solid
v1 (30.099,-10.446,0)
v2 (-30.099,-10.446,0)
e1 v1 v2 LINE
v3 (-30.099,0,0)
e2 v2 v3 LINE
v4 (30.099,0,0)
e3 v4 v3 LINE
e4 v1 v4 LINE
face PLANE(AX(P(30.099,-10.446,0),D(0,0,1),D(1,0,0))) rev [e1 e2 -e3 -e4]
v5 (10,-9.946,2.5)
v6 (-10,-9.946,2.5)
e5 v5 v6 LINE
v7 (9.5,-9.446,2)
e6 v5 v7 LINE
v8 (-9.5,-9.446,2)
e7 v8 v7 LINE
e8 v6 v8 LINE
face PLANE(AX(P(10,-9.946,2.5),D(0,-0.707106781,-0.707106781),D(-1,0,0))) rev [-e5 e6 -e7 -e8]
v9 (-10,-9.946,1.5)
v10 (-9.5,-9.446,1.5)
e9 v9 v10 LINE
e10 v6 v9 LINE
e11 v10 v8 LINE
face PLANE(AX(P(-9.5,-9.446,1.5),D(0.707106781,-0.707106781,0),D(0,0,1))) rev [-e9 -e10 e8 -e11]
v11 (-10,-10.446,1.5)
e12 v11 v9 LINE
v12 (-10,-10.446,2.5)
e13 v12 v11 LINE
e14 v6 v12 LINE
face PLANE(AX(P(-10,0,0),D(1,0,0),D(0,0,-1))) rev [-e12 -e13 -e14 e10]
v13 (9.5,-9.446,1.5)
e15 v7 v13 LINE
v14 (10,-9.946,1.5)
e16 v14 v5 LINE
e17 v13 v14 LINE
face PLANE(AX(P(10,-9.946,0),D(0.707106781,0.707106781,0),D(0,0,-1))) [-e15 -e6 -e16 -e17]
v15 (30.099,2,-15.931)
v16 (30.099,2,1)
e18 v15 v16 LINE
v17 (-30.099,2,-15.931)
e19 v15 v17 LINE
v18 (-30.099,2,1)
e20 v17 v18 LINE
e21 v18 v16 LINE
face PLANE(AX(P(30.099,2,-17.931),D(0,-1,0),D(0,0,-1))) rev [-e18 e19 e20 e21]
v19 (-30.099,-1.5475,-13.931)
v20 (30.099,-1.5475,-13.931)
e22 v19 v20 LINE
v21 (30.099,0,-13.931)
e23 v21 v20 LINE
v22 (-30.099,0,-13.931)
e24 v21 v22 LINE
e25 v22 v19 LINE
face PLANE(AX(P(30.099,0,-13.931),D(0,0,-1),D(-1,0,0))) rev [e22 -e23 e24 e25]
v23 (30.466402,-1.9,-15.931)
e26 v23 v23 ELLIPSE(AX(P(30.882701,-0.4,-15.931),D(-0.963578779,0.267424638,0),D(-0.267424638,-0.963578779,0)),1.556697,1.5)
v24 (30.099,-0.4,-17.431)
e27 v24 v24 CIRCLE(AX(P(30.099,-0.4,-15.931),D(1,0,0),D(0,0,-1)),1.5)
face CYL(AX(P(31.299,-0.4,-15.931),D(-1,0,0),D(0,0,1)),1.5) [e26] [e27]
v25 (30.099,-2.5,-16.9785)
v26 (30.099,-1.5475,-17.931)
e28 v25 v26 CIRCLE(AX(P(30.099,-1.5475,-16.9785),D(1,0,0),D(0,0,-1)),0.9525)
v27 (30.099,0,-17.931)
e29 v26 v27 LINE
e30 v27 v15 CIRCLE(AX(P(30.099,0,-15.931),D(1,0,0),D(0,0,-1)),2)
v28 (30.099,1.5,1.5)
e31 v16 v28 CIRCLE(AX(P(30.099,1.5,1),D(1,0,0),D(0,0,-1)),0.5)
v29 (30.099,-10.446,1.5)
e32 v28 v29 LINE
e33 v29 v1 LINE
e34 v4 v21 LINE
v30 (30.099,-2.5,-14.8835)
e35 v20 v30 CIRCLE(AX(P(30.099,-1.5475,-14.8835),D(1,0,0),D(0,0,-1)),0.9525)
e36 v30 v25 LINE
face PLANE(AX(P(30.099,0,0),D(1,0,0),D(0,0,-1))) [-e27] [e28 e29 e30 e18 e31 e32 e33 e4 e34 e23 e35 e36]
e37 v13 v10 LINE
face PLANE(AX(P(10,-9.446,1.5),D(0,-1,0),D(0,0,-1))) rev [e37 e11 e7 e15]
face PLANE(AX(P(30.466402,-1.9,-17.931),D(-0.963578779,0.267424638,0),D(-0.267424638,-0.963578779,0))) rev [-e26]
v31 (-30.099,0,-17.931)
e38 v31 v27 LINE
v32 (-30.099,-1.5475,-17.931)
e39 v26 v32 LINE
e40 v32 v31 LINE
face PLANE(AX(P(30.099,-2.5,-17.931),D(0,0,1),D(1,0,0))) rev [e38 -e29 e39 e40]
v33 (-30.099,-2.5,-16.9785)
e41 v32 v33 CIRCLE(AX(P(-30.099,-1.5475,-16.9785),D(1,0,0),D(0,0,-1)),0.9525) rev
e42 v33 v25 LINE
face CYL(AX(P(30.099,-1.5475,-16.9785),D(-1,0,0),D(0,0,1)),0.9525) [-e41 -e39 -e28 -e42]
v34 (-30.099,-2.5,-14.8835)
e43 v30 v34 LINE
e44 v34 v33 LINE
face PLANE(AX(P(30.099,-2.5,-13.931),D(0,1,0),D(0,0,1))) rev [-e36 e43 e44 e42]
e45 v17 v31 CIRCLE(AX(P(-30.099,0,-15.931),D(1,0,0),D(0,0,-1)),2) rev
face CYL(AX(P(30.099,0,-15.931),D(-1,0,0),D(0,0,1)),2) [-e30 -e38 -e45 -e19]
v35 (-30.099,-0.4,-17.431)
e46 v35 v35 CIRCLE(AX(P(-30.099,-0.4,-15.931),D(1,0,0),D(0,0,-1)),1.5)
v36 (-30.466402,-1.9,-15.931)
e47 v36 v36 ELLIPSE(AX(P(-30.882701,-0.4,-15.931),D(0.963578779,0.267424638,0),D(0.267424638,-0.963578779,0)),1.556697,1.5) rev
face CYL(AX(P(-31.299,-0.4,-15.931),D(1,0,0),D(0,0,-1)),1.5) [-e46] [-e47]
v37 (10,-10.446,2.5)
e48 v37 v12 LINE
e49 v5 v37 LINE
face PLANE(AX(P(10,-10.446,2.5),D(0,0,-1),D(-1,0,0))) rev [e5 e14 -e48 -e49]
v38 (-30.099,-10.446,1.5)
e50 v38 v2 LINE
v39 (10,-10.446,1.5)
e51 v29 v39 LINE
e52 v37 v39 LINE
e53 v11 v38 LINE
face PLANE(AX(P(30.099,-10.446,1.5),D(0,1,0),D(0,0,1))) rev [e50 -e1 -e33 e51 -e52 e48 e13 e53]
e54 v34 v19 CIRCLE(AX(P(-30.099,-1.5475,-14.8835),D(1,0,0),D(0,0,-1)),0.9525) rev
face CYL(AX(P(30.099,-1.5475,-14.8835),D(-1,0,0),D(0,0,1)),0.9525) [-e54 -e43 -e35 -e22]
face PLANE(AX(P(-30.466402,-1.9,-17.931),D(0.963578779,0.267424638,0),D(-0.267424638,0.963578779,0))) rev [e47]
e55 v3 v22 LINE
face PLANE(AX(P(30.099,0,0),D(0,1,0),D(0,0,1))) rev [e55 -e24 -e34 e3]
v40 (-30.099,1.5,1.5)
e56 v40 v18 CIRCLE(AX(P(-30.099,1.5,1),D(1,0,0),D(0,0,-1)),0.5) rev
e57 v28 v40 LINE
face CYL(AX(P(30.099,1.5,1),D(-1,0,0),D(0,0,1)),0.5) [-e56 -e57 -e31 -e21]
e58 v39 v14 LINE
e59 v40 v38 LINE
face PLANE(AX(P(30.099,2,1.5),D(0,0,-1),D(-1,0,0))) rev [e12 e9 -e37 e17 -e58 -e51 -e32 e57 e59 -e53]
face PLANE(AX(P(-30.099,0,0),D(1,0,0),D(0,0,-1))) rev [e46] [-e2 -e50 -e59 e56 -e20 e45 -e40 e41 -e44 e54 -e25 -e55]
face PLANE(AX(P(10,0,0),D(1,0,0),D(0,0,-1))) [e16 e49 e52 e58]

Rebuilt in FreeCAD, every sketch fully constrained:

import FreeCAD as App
import Part
import Sketcher
Q = App.Units.Quantity


def edges_at(feature, points):
    """Names of the edges that pass closest to the given points."""
    edges = feature.Shape.Edges
    near = lambda p: min(range(len(edges)), key=lambda i: edges[i].distToShape(Part.Vertex(*p))[0])
    return sorted({f"Edge{near(p) + 1}" for p in points})

doc = App.newDocument("Part")
params = doc.addObject("Spreadsheet::Sheet", "Params")
for row, (alias, value) in enumerate([
    ("sketch1_height", "4 mm"),
    ("sketch1_width", "2.5 mm"),
    ("sketch1_width2", "4.5 mm"),
    ("sketch1_height2", "1.5 mm"),
    ("pad1_length", "60.198 mm"),
    ("fillet_radius", "2 mm"),
    ("sketch2_width", "1 mm"),
    ("pad2_length", "20 mm"),
    ("sketch3_diameter", "3 mm"),
    ("pad3_length", "1.2 mm"),
    ("chamfer_size", "0.5 mm"),
    ("fillet2_radius", "0.5 mm"),
    ("fillet3_radius", "0.9525 mm"),
    ("sketch4_height", "3 mm"),
], start=1):
    params.set(f"A{row}", alias)
    params.set(f"B{row}", "=" + value)
    params.setAlias(f"B{row}", alias)

body = doc.addObject("PartDesign::Body", "Body")

sketch1 = doc.addObject("Sketcher::SketchObject", "Sketch")
body.addObject(sketch1)
sketch1.AttachmentSupport = (doc.YZ_Plane, [""])
sketch1.MapMode = "FlatFace"
sketch1.addGeometry([
    Part.LineSegment(App.Vector(-10.4, 0, 0), App.Vector(0, 0, 0)),
    Part.LineSegment(App.Vector(0, 0, 0), App.Vector(0, -13.9, 0)),
    Part.LineSegment(App.Vector(0, -13.9, 0), App.Vector(-2.5, -13.9, 0)),
    Part.LineSegment(App.Vector(-2.5, -13.9, 0), App.Vector(-2.5, -17.9, 0)),
    Part.LineSegment(App.Vector(-2.5, -17.9, 0), App.Vector(2, -17.9, 0)),
    Part.LineSegment(App.Vector(2, -17.9, 0), App.Vector(2, 1.5, 0)),
    Part.LineSegment(App.Vector(2, 1.5, 0), App.Vector(-10.4, 1.5, 0)),
    Part.LineSegment(App.Vector(-10.4, 1.5, 0), App.Vector(-10.4, 0, 0)),
], False)
sketch1.addConstraint([
    Sketcher.Constraint("Coincident", 0, 2, 1, 1),
    Sketcher.Constraint("Coincident", 1, 2, 2, 1),
    Sketcher.Constraint("Coincident", 2, 2, 3, 1),
    Sketcher.Constraint("Coincident", 3, 2, 4, 1),
    Sketcher.Constraint("Coincident", 4, 2, 5, 1),
    Sketcher.Constraint("Coincident", 5, 2, 6, 1),
    Sketcher.Constraint("Coincident", 6, 2, 7, 1),
    Sketcher.Constraint("Coincident", 7, 2, 0, 1),
    Sketcher.Constraint("Horizontal", 0),
    Sketcher.Constraint("Vertical", 1),
    Sketcher.Constraint("Horizontal", 2),
    Sketcher.Constraint("Vertical", 3),
    Sketcher.Constraint("Horizontal", 4),
    Sketcher.Constraint("Vertical", 5),
    Sketcher.Constraint("Horizontal", 6),
    Sketcher.Constraint("Vertical", 7),
    Sketcher.Constraint("Coincident", 0, 2, -1, 1),
    Sketcher.Constraint("DistanceY", 3, 2, 3, 1, Q("4 mm")),
    Sketcher.Constraint("DistanceX", 2, 2, 2, 1, Q("2.5 mm")),
    Sketcher.Constraint("DistanceX", 4, 1, 4, 2, Q("4.5 mm")),
    Sketcher.Constraint("DistanceY", 7, 2, 7, 1, Q("1.5 mm")),
    Sketcher.Constraint("DistanceX", 0, 1, 0, 2, Q("10.446 mm")),
    Sketcher.Constraint("DistanceY", 1, 2, 1, 1, Q("13.931 mm")),
])
sketch1.setExpression("Constraints[17]", "Params.sketch1_height")
sketch1.setExpression("Constraints[18]", "Params.sketch1_width")
sketch1.setExpression("Constraints[19]", "Params.sketch1_width2")
sketch1.setExpression("Constraints[20]", "Params.sketch1_height2")
pad1 = doc.addObject("PartDesign::Pad", "Pad")
body.addObject(pad1)
pad1.Profile = sketch1
pad1.setExpression("Length", "Params.pad1_length")
pad1.Midplane = True
doc.recompute()

fillet = doc.addObject("PartDesign::Fillet", "Fillet")
body.addObject(fillet)
fillet.Base = (pad1, edges_at(pad1, [(0, 2, -17.931)]))
fillet.setExpression("Radius", "Params.fillet_radius")

sketch2 = doc.addObject("Sketcher::SketchObject", "Sketch001")
body.addObject(sketch2)
sketch2.AttachmentSupport = (doc.YZ_Plane, [""])
sketch2.MapMode = "FlatFace"
sketch2.addGeometry([
    Part.LineSegment(App.Vector(-9.4, 2.5, 0), App.Vector(-10.4, 2.5, 0)),
    Part.LineSegment(App.Vector(-10.4, 2.5, 0), App.Vector(-10.4, 1.5, 0)),
    Part.LineSegment(App.Vector(-10.4, 1.5, 0), App.Vector(-9.4, 1.5, 0)),
    Part.LineSegment(App.Vector(-9.4, 1.5, 0), App.Vector(-9.4, 2.5, 0)),
], False)
sketch2.addConstraint([
    Sketcher.Constraint("Coincident", 0, 2, 1, 1),
    Sketcher.Constraint("Coincident", 1, 2, 2, 1),
    Sketcher.Constraint("Coincident", 2, 2, 3, 1),
    Sketcher.Constraint("Coincident", 3, 2, 0, 1),
    Sketcher.Constraint("Horizontal", 0),
    Sketcher.Constraint("Vertical", 1),
    Sketcher.Constraint("Horizontal", 2),
    Sketcher.Constraint("Vertical", 3),
    Sketcher.Constraint("Equal", 2, 1),
    Sketcher.Constraint("DistanceX", 0, 2, 0, 1, Q("1 mm")),
    Sketcher.Constraint("DistanceY", -1, 1, 0, 2, Q("2.5 mm")),
    Sketcher.Constraint("DistanceX", 0, 2, -1, 1, Q("10.446 mm")),
])
sketch2.setExpression("Constraints[9]", "Params.sketch2_width")
pad2 = doc.addObject("PartDesign::Pad", "Pad001")
body.addObject(pad2)
pad2.Profile = sketch2
pad2.setExpression("Length", "Params.pad2_length")
pad2.Midplane = True

sketch3 = doc.addObject("Sketcher::SketchObject", "Sketch002")
body.addObject(sketch3)
sketch3.AttachmentSupport = (doc.YZ_Plane, [""])
sketch3.MapMode = "FlatFace"
sketch3.AttachmentOffset = App.Placement(App.Vector(0, 0, 30.099), App.Rotation())
sketch3.addGeometry(Part.Circle(App.Vector(-0.4, -15.9, 0), App.Vector(0, 0, 1), 1.5), False)
sketch3.addConstraint([
    Sketcher.Constraint("Diameter", 0, Q("3 mm")),
    Sketcher.Constraint("DistanceX", 0, 3, -1, 1, Q("0.4 mm")),
    Sketcher.Constraint("DistanceY", 0, 3, -1, 1, Q("15.931 mm")),
])
sketch3.setExpression("Constraints[0]", "Params.sketch3_diameter")
pad3 = doc.addObject("PartDesign::Pad", "Pad002")
body.addObject(pad3)
pad3.Profile = sketch3
pad3.setExpression("Length", "Params.pad3_length")
doc.recompute()

mirrored = doc.addObject("PartDesign::Mirrored", "Mirrored")
body.addObject(mirrored)
mirrored.Originals = [pad3]
mirrored.MirrorPlane = (doc.YZ_Plane, [""])
body.Tip = mirrored
doc.recompute()

chamfer = doc.addObject("PartDesign::Chamfer", "Chamfer")
body.addObject(chamfer)
chamfer.Base = (mirrored, edges_at(mirrored, [(-10, -9.446, 2), (0, -9.446, 2.5), (10, -9.446, 2)]))
chamfer.setExpression("Size", "Params.chamfer_size")
doc.recompute()

fillet2 = doc.addObject("PartDesign::Fillet", "Fillet001")
body.addObject(fillet2)
fillet2.Base = (chamfer, edges_at(chamfer, [(0, 2, 1.5)]))
fillet2.setExpression("Radius", "Params.fillet2_radius")
doc.recompute()

fillet3 = doc.addObject("PartDesign::Fillet", "Fillet002")
body.addObject(fillet3)
fillet3.Base = (fillet2, edges_at(fillet2, [(0, -2.5, -17.931), (0, -2.5, -13.931)]))
fillet3.setExpression("Radius", "Params.fillet3_radius")

sketch4 = doc.addObject("Sketcher::SketchObject", "Sketch003")
body.addObject(sketch4)
sketch4.AttachmentSupport = (doc.XY_Plane, [""])
sketch4.MapMode = "FlatFace"
sketch4.AttachmentOffset = App.Placement(App.Vector(0, 0, 1.5), App.Rotation())
sketch4.addGeometry([
    Part.LineSegment(App.Vector(31.3, 1.1, 0), App.Vector(30.5, -1.9, 0)),
    Part.LineSegment(App.Vector(30.5, -1.9, 0), App.Vector(31.3, -1.9, 0)),
    Part.LineSegment(App.Vector(31.3, -1.9, 0), App.Vector(31.3, 1.1, 0)),
    Part.LineSegment(App.Vector(-31.3, -1.9, 0), App.Vector(-30.5, -1.9, 0)),
    Part.LineSegment(App.Vector(-30.5, -1.9, 0), App.Vector(-31.3, 1.1, 0)),
    Part.LineSegment(App.Vector(-31.3, 1.1, 0), App.Vector(-31.3, -1.9, 0)),
], False)
sketch4.addConstraint([
    Sketcher.Constraint("Coincident", 0, 2, 1, 1),
    Sketcher.Constraint("Coincident", 1, 2, 2, 1),
    Sketcher.Constraint("Coincident", 2, 2, 0, 1),
    Sketcher.Constraint("Coincident", 3, 2, 4, 1),
    Sketcher.Constraint("Coincident", 4, 2, 5, 1),
    Sketcher.Constraint("Coincident", 5, 2, 3, 1),
    Sketcher.Constraint("Horizontal", 1),
    Sketcher.Constraint("Vertical", 2),
    Sketcher.Constraint("Horizontal", 3),
    Sketcher.Constraint("Vertical", 5),
    Sketcher.Constraint("Symmetric", 0, 2, 3, 2, -2),
    Sketcher.Constraint("Symmetric", 2, 2, 4, 2, -2),
    Sketcher.Constraint("DistanceY", 2, 1, 2, 2, Q("3 mm")),
    Sketcher.Constraint("DistanceY", 0, 2, -1, 1, Q("1.9 mm")),
    Sketcher.Constraint("DistanceX", 1, 1, 1, 2, Q("0.832598 mm")),
    Sketcher.Constraint("DistanceX", -1, 1, 1, 2, Q("31.299 mm")),
])
sketch4.setExpression("Constraints[12]", "Params.sketch4_height")
pocket1 = doc.addObject("PartDesign::Pocket", "Pocket")
body.addObject(pocket1)
pocket1.Profile = sketch4
pocket1.Type = "ThroughAll"
pocket1.Midplane = True

doc.recompute()
